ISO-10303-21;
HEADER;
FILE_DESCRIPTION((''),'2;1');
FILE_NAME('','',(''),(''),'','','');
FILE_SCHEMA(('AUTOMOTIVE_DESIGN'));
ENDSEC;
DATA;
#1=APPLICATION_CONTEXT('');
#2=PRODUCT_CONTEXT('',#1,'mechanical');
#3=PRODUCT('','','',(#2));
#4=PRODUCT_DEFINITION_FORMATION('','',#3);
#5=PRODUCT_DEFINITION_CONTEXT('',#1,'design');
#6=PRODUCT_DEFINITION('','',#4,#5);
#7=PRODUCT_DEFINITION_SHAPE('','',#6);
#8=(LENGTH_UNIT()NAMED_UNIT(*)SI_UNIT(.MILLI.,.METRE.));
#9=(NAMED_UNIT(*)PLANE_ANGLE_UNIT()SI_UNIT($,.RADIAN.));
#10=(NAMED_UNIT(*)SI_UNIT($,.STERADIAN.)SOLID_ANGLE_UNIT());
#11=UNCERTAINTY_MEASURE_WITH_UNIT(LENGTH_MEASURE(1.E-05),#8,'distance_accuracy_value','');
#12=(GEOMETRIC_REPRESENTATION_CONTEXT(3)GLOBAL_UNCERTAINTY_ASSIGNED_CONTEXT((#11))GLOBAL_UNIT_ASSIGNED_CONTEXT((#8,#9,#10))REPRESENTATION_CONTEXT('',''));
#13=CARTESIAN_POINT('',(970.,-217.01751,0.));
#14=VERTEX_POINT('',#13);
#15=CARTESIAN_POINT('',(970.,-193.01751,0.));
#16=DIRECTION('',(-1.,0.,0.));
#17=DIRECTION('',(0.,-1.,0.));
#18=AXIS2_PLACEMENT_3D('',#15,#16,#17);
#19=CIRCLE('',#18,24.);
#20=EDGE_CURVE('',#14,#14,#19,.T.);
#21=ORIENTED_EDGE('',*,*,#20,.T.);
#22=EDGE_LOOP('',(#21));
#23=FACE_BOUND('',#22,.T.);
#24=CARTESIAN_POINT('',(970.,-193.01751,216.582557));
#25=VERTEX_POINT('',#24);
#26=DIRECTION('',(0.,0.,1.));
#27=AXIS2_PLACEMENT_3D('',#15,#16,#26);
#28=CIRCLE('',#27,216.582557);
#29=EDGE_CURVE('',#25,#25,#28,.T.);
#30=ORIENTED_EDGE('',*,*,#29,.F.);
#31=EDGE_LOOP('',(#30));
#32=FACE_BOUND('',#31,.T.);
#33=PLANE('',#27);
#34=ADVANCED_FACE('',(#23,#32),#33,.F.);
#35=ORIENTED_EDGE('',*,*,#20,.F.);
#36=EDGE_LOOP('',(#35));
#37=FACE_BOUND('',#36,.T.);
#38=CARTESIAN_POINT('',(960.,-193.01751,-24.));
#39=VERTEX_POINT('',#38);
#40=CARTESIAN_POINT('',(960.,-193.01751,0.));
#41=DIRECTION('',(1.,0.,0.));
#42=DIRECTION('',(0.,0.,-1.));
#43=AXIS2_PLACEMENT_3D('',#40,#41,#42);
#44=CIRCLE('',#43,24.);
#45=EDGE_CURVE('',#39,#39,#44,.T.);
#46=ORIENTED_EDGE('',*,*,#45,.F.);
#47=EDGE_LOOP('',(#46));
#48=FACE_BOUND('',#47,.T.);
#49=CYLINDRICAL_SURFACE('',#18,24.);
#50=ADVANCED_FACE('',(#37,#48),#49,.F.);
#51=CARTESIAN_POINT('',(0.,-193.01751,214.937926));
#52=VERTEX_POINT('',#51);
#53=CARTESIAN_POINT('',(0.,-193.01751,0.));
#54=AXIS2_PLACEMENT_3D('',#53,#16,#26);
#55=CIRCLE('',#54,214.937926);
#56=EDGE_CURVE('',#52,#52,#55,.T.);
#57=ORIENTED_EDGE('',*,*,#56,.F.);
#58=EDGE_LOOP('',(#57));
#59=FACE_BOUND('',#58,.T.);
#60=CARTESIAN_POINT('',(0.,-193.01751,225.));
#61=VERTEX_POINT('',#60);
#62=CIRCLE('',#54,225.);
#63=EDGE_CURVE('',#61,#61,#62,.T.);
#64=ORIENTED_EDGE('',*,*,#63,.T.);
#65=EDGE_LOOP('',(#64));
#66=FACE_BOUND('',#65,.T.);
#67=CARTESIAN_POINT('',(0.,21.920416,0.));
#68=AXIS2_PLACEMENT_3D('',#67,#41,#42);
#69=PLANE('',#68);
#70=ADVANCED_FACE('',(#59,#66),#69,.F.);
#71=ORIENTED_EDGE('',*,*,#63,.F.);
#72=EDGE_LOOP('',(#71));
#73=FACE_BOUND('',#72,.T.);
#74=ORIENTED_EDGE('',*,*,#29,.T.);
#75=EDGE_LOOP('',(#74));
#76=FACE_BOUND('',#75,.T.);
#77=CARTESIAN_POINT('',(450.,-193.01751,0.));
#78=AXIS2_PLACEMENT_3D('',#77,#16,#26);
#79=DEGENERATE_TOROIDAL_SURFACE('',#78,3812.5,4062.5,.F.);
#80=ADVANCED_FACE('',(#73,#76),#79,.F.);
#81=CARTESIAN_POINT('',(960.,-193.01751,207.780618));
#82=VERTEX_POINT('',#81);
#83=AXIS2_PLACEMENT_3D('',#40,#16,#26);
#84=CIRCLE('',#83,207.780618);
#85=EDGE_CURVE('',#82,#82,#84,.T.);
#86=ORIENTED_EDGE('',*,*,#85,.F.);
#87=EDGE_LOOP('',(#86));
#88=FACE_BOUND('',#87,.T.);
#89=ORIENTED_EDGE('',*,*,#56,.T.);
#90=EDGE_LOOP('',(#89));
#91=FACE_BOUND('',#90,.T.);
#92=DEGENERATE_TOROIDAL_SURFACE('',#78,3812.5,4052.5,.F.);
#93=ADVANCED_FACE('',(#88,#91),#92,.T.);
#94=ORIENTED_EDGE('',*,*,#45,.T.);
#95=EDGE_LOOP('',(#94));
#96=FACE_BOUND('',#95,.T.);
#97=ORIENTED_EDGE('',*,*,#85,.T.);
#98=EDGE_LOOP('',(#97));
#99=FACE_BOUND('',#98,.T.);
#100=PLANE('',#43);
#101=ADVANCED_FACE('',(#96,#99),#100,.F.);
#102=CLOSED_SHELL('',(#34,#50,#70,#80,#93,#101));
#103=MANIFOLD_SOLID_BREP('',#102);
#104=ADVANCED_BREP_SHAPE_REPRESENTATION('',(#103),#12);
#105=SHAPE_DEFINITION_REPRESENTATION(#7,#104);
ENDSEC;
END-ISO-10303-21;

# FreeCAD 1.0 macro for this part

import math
import FreeCAD as App
import Part
import Sketcher

V = App.Vector
Q = App.Units.Quantity

doc = App.newDocument("Part")
body = doc.addObject("PartDesign::Body", "Body")

sketch1 = body.newObject("Sketcher::SketchObject", "Sketch")
sketch1.AttachmentSupport = (doc.getObject("XY_Plane"), [""])
sketch1.MapMode = "FlatFace"
sketch1.addGeometry(Part.LineSegment(V(0, 32, 0), V(0, 22, 0)), False)
sketch1.addGeometry(Part.ArcOfCircle(Part.Circle(V(450, -4006, 0), V(0, 0, 1), 4052), math.radians(82.77), math.radians(96.38)), False)
sketch1.addGeometry(Part.LineSegment(V(960, 15, 0), V(960, -193, 0)), False)
sketch1.addGeometry(Part.LineSegment(V(960, -193, 0), V(970, -193, 0)), False)
sketch1.addGeometry(Part.LineSegment(V(970, -193, 0), V(970, 24, 0)), False)
sketch1.addGeometry(Part.ArcOfCircle(Part.Circle(V(450, -4006, 0), V(0, 0, 1), 4062), math.radians(82.65), math.radians(96.36)), False)
sketch1.addGeometry(Part.LineSegment(V(0, -193, 0), V(970, -193, 0)), True)
sketch1.addConstraint(Sketcher.Constraint("Coincident", 0, 2, 1, 2))
sketch1.addConstraint(Sketcher.Constraint("Coincident", 1, 1, 2, 1))
sketch1.addConstraint(Sketcher.Constraint("Coincident", 2, 2, 3, 1))
sketch1.addConstraint(Sketcher.Constraint("Coincident", 3, 2, 4, 1))
sketch1.addConstraint(Sketcher.Constraint("Coincident", 4, 2, 5, 1))
sketch1.addConstraint(Sketcher.Constraint("Coincident", 5, 2, 0, 1))
sketch1.addConstraint(Sketcher.Constraint("Vertical", 0))
sketch1.addConstraint(Sketcher.Constraint("Vertical", 2))
sketch1.addConstraint(Sketcher.Constraint("Horizontal", 3))
sketch1.addConstraint(Sketcher.Constraint("Vertical", 4))
sketch1.addConstraint(Sketcher.Constraint("Horizontal", 6))
sketch1.addConstraint(Sketcher.Constraint("Coincident", 5, 3, 1, 3))
sketch1.addConstraint(Sketcher.Constraint("Coincident", 6, 2, 3, 2))
sketch1.addConstraint(Sketcher.Constraint("PointOnObject", 0, 2, -2))
sketch1.addConstraint(Sketcher.Constraint("PointOnObject", 6, 1, -2))
sketch1.addConstraint(Sketcher.Constraint("Radius", 1, Q("4052.5 mm")))
sketch1.addConstraint(Sketcher.Constraint("Radius", 5, Q("4062.5 mm")))
sketch1.addConstraint(Sketcher.Constraint("DistanceX", 3, 1, 3, 2, Q("10 mm")))
sketch1.addConstraint(Sketcher.Constraint("DistanceX", 6, 1, 6, 2, Q("970 mm")))
sketch1.addConstraint(Sketcher.Constraint("DistanceX", -1, 1, 1, 3, Q("450 mm")))
sketch1.addConstraint(Sketcher.Constraint("DistanceY", 1, 3, 2, 2, Q("3812.5 mm")))
sketch1.addConstraint(Sketcher.Constraint("DistanceY", 1, 3, -1, 1, Q("4005.51751 mm")))
revolution = body.newObject("PartDesign::Revolution", "Revolution")
revolution.Profile = sketch1
revolution.ReferenceAxis = (sketch1, ["Axis0"])
revolution.Angle = 360

sketch2 = body.newObject("Sketcher::SketchObject", "Sketch001")
sketch2.AttachmentSupport = (doc.getObject("YZ_Plane"), [""])
sketch2.MapMode = "FlatFace"
sketch2.addGeometry(Part.Circle(V(-193, 0, 0), V(0, 0, 1), 24), False)
sketch2.addConstraint(Sketcher.Constraint("PointOnObject", 0, 3, -1))
sketch2.addConstraint(Sketcher.Constraint("Diameter", 0, Q("48 mm")))
sketch2.addConstraint(Sketcher.Constraint("DistanceX", 0, 3, -1, 1, Q("193.01751 mm")))
pocket1 = body.newObject("PartDesign::Pocket", "Pocket")
pocket1.Profile = sketch2
pocket1.Type = "ThroughAll"
pocket1.Reversed = True

doc.recompute()
